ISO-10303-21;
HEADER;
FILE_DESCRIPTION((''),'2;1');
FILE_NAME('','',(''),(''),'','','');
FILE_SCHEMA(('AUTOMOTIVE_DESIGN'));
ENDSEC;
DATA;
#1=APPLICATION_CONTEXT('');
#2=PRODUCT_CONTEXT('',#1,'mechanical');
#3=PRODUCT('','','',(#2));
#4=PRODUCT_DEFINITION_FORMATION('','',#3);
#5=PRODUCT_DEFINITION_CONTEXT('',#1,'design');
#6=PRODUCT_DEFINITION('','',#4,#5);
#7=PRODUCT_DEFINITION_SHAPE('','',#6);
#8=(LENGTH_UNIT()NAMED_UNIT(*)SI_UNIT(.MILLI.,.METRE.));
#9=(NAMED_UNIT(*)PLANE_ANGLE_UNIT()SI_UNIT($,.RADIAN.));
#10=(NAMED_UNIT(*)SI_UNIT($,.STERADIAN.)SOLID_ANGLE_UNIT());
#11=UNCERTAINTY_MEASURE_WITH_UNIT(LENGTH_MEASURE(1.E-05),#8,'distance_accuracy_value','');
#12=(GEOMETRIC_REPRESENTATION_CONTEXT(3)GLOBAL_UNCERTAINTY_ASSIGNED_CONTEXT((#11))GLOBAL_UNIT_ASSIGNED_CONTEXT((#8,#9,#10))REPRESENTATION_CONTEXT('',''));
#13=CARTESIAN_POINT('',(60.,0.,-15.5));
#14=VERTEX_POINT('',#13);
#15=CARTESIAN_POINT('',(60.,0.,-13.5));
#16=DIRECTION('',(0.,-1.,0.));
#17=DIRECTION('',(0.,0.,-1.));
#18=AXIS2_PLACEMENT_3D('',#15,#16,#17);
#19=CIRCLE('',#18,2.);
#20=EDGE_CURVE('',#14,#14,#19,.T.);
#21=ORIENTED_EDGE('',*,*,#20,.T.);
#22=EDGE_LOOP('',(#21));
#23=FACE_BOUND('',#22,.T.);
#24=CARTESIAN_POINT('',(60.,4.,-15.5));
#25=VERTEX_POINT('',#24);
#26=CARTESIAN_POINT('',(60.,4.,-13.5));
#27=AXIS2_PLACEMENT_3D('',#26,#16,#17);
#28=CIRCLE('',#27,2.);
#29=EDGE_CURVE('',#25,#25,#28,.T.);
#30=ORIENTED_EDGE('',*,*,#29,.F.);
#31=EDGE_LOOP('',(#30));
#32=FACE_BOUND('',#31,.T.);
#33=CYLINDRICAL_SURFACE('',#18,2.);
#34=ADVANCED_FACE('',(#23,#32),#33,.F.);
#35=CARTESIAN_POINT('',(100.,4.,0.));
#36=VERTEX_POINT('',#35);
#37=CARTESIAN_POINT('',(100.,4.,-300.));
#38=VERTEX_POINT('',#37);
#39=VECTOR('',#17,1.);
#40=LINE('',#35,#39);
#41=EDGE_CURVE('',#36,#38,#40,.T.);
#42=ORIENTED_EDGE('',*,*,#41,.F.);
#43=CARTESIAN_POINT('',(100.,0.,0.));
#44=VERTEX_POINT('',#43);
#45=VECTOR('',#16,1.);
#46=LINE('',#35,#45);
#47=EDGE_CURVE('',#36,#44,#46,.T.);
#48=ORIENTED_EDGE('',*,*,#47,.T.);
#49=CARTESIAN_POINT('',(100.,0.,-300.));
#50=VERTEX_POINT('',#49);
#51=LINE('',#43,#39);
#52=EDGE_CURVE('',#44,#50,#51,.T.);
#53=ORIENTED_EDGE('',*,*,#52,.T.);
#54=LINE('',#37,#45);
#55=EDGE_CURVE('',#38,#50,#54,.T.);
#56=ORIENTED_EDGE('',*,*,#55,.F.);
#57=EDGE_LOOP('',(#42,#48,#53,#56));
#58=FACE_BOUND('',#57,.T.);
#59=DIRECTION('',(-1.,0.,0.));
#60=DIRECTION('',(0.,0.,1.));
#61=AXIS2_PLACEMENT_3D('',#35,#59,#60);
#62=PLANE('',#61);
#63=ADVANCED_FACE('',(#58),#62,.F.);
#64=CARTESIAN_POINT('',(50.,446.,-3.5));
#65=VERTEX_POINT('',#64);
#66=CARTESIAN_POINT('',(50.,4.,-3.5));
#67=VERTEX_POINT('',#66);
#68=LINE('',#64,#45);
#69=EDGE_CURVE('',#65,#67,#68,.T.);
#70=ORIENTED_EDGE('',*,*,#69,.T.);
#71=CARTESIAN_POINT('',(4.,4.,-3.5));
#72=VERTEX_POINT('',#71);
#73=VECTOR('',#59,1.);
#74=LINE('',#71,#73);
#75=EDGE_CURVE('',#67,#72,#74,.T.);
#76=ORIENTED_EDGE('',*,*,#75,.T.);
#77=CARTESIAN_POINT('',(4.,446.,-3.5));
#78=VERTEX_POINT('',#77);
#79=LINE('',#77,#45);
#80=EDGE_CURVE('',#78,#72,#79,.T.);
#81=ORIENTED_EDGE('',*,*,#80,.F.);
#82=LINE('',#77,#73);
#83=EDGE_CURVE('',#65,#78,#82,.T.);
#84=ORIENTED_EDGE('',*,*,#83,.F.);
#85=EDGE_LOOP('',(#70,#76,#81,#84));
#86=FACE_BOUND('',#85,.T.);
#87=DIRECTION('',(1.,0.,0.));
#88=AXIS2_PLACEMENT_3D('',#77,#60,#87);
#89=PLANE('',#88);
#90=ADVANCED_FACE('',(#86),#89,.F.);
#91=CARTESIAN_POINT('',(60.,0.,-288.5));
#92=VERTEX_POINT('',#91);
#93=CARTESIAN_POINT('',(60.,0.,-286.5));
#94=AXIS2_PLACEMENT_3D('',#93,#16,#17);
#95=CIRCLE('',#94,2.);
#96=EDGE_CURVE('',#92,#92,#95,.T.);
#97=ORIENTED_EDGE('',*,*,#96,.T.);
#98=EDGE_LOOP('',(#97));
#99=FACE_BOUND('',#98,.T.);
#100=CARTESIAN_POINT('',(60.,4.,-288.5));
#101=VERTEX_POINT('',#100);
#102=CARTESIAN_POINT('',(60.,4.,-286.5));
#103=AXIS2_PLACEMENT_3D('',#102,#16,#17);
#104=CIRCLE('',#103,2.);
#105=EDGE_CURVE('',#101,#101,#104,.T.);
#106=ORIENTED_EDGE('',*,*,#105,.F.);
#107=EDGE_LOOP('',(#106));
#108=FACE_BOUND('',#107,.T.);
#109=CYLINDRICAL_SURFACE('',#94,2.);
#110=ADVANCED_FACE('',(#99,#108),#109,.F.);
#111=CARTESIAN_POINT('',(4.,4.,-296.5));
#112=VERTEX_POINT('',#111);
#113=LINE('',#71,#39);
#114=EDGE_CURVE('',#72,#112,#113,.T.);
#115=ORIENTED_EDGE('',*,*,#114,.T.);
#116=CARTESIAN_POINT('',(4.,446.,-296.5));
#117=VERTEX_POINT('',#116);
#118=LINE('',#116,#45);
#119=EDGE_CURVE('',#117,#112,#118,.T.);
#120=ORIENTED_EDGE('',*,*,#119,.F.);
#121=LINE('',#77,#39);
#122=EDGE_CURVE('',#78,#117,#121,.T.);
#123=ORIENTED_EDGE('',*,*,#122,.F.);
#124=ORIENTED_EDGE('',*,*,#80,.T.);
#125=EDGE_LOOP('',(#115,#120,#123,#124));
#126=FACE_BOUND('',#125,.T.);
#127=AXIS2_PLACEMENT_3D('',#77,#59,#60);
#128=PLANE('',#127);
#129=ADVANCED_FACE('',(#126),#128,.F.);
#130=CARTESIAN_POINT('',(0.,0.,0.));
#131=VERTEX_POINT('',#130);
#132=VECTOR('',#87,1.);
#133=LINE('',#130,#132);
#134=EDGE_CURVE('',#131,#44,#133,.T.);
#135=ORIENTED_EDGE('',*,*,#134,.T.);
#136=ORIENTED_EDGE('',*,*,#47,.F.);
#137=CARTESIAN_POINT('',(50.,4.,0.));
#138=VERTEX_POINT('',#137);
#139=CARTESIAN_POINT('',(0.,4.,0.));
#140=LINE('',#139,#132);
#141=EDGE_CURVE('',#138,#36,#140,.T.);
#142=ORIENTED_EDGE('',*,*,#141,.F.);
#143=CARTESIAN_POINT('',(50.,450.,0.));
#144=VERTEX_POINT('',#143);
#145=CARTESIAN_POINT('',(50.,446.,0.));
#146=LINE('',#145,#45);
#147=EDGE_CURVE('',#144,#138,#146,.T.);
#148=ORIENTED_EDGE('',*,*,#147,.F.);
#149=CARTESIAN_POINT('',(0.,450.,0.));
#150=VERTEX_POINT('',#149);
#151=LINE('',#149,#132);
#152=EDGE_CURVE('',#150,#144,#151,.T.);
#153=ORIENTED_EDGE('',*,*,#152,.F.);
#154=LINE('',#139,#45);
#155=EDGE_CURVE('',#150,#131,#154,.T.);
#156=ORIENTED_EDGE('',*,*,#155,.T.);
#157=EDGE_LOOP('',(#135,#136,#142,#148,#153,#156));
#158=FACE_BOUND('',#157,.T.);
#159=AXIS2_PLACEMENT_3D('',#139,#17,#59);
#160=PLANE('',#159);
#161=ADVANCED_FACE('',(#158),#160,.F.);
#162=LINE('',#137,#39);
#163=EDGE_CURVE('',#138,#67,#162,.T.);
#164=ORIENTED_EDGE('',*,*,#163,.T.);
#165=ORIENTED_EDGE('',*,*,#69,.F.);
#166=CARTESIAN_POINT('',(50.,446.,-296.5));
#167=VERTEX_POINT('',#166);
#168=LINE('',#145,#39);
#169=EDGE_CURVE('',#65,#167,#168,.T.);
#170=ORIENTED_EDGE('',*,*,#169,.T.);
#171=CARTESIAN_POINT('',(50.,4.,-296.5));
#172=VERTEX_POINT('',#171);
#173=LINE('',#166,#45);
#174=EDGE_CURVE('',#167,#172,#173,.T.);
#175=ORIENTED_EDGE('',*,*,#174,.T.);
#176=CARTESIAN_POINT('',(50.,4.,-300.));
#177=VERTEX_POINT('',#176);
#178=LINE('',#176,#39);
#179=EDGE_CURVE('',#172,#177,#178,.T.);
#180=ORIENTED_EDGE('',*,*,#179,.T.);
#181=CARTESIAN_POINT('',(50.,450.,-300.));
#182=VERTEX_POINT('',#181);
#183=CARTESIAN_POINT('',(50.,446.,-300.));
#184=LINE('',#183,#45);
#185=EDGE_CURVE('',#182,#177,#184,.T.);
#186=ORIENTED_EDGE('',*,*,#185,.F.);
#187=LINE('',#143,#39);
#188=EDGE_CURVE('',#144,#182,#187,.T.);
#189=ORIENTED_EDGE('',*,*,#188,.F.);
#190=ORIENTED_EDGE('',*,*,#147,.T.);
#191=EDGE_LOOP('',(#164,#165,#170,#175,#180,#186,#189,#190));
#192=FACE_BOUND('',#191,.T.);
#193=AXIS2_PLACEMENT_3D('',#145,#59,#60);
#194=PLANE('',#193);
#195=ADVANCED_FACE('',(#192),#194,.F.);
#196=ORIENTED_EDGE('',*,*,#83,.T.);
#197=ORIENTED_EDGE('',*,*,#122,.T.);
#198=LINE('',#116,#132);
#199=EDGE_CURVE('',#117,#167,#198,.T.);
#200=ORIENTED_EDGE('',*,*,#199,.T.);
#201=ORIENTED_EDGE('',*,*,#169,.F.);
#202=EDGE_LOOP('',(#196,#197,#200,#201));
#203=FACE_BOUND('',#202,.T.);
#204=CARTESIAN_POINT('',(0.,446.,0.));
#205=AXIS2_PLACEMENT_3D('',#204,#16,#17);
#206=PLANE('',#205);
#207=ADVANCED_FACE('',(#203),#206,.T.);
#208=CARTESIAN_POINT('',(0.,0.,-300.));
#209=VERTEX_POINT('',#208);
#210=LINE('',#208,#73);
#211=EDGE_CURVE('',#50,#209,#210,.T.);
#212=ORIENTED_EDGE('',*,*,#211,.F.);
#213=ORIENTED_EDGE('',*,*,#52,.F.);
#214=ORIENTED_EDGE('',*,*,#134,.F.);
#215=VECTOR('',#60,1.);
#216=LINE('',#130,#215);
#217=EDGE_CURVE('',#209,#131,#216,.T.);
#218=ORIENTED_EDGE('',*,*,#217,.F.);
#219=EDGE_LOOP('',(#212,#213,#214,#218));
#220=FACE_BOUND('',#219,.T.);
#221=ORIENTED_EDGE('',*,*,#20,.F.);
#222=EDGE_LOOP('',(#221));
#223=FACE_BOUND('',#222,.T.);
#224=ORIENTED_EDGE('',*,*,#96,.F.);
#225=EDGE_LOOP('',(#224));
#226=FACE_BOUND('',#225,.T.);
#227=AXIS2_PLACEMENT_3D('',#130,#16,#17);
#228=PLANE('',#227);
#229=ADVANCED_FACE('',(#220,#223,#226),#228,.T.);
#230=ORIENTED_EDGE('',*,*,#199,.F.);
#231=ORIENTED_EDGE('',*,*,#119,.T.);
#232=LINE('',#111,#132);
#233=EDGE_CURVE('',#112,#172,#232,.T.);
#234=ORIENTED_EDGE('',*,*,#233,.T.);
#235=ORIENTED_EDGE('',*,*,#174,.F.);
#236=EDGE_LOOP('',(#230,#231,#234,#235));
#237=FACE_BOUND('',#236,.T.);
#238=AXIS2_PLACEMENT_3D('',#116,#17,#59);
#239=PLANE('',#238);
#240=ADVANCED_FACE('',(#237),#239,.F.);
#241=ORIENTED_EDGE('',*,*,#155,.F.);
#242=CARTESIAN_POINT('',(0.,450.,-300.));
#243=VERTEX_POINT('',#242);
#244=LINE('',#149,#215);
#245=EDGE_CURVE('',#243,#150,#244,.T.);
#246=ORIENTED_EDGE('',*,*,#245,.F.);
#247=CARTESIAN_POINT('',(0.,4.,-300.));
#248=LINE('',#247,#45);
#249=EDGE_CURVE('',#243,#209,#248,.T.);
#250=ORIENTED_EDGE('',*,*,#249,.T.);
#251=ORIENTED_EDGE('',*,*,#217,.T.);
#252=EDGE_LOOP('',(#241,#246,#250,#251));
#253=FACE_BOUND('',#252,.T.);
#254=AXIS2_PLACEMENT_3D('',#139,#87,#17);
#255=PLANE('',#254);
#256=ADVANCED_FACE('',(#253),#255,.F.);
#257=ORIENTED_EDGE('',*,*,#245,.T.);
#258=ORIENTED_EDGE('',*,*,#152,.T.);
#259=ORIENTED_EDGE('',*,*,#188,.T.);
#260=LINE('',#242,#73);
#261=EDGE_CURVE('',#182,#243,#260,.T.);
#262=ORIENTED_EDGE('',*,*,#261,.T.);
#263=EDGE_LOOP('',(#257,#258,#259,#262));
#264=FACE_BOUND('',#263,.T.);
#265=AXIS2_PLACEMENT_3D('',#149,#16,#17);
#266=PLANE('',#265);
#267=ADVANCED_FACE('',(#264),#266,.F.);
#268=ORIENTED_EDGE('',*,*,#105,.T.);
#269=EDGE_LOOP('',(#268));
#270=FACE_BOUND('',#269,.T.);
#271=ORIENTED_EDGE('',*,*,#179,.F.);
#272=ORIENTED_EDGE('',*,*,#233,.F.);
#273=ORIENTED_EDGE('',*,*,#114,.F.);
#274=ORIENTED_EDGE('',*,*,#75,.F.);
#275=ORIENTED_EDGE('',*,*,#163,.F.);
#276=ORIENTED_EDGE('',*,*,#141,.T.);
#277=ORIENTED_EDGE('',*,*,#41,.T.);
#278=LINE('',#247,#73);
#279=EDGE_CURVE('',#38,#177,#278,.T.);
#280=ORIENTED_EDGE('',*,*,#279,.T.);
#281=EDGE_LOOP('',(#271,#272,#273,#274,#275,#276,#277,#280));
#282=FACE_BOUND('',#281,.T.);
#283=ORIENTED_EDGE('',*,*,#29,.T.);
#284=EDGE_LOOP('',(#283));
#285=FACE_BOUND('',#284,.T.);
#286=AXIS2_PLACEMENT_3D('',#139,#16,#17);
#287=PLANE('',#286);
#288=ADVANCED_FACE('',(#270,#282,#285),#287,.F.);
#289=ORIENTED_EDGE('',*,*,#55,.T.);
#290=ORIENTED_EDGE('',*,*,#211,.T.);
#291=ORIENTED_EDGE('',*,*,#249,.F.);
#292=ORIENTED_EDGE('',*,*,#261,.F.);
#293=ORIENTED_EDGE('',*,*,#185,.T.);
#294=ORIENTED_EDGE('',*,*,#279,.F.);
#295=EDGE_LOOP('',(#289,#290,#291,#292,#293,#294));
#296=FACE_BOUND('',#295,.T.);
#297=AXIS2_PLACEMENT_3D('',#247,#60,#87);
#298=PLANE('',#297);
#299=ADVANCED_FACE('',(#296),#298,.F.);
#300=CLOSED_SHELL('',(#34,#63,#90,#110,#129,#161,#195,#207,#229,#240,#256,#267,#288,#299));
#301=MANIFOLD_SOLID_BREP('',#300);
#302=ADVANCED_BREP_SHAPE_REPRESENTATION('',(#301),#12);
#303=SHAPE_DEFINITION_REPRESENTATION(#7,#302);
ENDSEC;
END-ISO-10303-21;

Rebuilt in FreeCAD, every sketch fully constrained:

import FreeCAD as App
import Part
import Sketcher

V = App.Vector


def add_polygon(sketch, points):
    """Adds a closed chain of lines whose ends are joined by coincident constraints."""
    first, n = sketch.GeometryCount, len(points)
    for a, b in zip(points, points[1:] + points[:1]):
        sketch.addGeometry(Part.LineSegment(App.Vector(*a, 0), App.Vector(*b, 0)), False)
    for i in range(n):
        sketch.addConstraint(Sketcher.Constraint("Coincident", first + i, 2, first + (i + 1) % n, 1))

doc = App.newDocument("Part")
body = doc.addObject("PartDesign::Body", "Body")

sketch1 = doc.addObject("Sketcher::SketchObject", "Sketch")
body.addObject(sketch1)
sketch1.AttachmentSupport = (doc.XZ_Plane, [""])
sketch1.MapMode = "FlatFace"
add_polygon(sketch1, [(0, -300), (0, 0), (100, 0), (100, -300)])
sketch1.addConstraint([
    Sketcher.Constraint("Vertical", 0),
    Sketcher.Constraint("Horizontal", 1),
    Sketcher.Constraint("Vertical", 2),
    Sketcher.Constraint("Horizontal", 3),
    Sketcher.Constraint("Coincident", 0, 2, -1, 1),
    Sketcher.Constraint("DistanceX", 1, 1, 1, 2, 100.0),
    Sketcher.Constraint("DistanceY", 0, 1, 0, 2, 300.0),
])
pad1 = doc.addObject("PartDesign::Pad", "Pad")
body.addObject(pad1)
pad1.Profile = sketch1
pad1.Length = 4
pad1.Reversed = True

sketch2 = doc.addObject("Sketcher::SketchObject", "Sketch001")
body.addObject(sketch2)
sketch2.AttachmentSupport = (doc.XZ_Plane, [""])
sketch2.MapMode = "FlatFace"
sketch2.AttachmentOffset = App.Placement(V(0, 0, -4), App.Rotation())
add_polygon(sketch2, [(0, 0), (50, 0), (50, -3.5), (4, -3.5), (4, -296.5), (50, -296.5), (50, -300), (0, -300)])
sketch2.addConstraint([
    Sketcher.Constraint("Horizontal", 0),
    Sketcher.Constraint("Vertical", 1),
    Sketcher.Constraint("Horizontal", 2),
    Sketcher.Constraint("Vertical", 3),
    Sketcher.Constraint("Horizontal", 4),
    Sketcher.Constraint("Vertical", 5),
    Sketcher.Constraint("Horizontal", 6),
    Sketcher.Constraint("Vertical", 7),
    Sketcher.Constraint("Coincident", 7, 2, -1, 1),
    Sketcher.Constraint("Vertical", 1, 2, 4, 2),
    Sketcher.Constraint("Equal", 1, 5),
    Sketcher.Constraint("DistanceX", 0, 1, 0, 2, 50.0),
    Sketcher.Constraint("DistanceX", 2, 2, 2, 1, 46.0),
    Sketcher.Constraint("DistanceY", 3, 2, 3, 1, 293.0),
    Sketcher.Constraint("DistanceY", 7, 1, 7, 2, 300.0),
])
pad2 = doc.addObject("PartDesign::Pad", "Pad001")
body.addObject(pad2)
pad2.Profile = sketch2
pad2.Length = 442
pad2.Reversed = True

sketch3 = doc.addObject("Sketcher::SketchObject", "Sketch002")
body.addObject(sketch3)
sketch3.AttachmentSupport = (doc.XZ_Plane, [""])
sketch3.MapMode = "FlatFace"
sketch3.AttachmentOffset = App.Placement(V(0, 0, -446), App.Rotation())
add_polygon(sketch3, [(0, -300), (0, 0), (50, 0), (50, -300)])
sketch3.addConstraint([
    Sketcher.Constraint("Vertical", 0),
    Sketcher.Constraint("Horizontal", 1),
    Sketcher.Constraint("Vertical", 2),
    Sketcher.Constraint("Horizontal", 3),
    Sketcher.Constraint("Coincident", 0, 2, -1, 1),
    Sketcher.Constraint("DistanceX", 1, 1, 1, 2, 50.0),
    Sketcher.Constraint("DistanceY", 0, 1, 0, 2, 300.0),
])
pad3 = doc.addObject("PartDesign::Pad", "Pad002")
body.addObject(pad3)
pad3.Profile = sketch3
pad3.Length = 4
pad3.Reversed = True

sketch4 = doc.addObject("Sketcher::SketchObject", "Sketch003")
body.addObject(sketch4)
sketch4.AttachmentSupport = (doc.XZ_Plane, [""])
sketch4.MapMode = "FlatFace"
sketch4.addGeometry([
    Part.Circle(V(60, -13.5, 0), V(0, 0, 1), 2),
    Part.Circle(V(60, -286.5, 0), V(0, 0, 1), 2),
], False)
sketch4.addConstraint([
    Sketcher.Constraint("Equal", 0, 1),
    Sketcher.Constraint("Vertical", 0, 3, 1, 3),
    Sketcher.Constraint("Diameter", 0, 4.0),
    Sketcher.Constraint("DistanceX", -1, 1, 0, 3, 60.0),
    Sketcher.Constraint("DistanceY", 1, 3, 0, 3, 273.0),
    Sketcher.Constraint("DistanceY", 0, 3, -1, 1, 13.5),
])
doc.recompute()
hole = doc.addObject("PartDesign::Hole", "Hole")
body.addObject(hole)
hole.Profile = sketch4
hole.ThreadType = "None"
hole.Diameter = 4
hole.DepthType = "ThroughAll"

doc.recompute()
